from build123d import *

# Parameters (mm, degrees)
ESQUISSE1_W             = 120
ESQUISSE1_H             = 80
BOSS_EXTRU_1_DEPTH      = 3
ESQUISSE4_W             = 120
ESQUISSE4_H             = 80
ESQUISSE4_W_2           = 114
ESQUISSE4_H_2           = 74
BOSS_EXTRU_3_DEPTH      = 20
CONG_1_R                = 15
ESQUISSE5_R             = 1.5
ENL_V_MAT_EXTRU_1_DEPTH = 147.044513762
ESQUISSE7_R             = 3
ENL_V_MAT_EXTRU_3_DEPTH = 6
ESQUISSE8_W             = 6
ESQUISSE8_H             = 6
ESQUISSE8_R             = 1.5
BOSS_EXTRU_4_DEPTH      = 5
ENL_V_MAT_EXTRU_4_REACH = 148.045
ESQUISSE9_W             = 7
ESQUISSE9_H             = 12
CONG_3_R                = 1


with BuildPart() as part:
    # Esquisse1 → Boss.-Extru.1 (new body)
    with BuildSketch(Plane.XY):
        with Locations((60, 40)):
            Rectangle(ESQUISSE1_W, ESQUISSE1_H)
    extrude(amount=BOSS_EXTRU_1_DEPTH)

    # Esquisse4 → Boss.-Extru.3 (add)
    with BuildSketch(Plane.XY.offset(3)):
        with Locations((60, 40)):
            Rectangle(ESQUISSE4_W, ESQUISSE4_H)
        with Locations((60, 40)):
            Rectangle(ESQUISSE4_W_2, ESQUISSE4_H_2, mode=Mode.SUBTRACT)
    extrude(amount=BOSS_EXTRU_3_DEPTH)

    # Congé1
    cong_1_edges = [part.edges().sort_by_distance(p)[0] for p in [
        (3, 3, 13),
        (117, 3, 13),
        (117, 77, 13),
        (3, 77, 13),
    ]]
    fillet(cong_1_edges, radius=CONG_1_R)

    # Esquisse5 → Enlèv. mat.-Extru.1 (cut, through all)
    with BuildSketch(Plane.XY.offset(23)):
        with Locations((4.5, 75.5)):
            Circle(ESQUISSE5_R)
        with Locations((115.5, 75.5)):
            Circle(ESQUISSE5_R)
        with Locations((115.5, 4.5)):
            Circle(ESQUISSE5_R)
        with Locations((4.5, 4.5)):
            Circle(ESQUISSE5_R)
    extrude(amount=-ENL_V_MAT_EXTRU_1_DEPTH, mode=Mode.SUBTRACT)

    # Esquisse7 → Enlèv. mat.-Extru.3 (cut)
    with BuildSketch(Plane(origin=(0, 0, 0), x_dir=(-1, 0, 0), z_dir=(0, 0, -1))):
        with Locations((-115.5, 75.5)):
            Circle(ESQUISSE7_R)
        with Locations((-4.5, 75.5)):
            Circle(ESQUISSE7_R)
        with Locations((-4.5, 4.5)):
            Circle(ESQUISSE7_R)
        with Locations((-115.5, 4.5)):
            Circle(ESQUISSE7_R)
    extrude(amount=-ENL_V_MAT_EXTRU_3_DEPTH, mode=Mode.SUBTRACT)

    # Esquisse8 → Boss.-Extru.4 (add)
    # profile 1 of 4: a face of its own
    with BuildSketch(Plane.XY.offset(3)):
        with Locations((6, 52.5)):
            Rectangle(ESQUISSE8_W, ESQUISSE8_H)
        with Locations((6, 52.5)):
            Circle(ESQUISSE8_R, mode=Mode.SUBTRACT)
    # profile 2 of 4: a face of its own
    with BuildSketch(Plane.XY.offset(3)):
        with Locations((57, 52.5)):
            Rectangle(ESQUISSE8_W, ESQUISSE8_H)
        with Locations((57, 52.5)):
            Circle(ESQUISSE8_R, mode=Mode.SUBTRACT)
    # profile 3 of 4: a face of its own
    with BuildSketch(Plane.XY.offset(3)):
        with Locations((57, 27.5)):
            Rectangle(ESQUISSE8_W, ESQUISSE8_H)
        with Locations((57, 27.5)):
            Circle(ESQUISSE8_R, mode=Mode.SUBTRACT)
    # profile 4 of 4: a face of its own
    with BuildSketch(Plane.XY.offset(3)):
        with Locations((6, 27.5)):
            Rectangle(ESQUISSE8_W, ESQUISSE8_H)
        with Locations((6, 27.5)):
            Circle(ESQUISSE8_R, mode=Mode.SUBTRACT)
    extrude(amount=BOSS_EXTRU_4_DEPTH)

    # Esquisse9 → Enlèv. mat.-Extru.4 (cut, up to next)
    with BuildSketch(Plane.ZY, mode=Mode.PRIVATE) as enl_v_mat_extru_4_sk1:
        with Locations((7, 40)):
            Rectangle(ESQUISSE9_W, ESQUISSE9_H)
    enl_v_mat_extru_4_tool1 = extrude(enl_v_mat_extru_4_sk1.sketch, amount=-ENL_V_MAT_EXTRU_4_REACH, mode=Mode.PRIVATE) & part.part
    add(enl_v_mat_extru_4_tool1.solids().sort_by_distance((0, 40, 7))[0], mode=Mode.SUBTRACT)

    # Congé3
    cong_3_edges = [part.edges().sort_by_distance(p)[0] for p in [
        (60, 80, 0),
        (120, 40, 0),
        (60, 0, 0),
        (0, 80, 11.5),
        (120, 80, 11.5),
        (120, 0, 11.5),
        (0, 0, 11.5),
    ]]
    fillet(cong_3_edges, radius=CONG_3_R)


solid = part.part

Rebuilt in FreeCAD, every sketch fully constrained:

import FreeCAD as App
import Part
import Sketcher
from FreeCAD import Vector
Q = App.Units.Quantity


def edges_at(feature, points):
    """Names of the edges that pass closest to the given points."""
    edges = feature.Shape.Edges
    near = lambda p: min(range(len(edges)), key=lambda i: edges[i].distToShape(Part.Vertex(*p))[0])
    return sorted({f"Edge{near(p) + 1}" for p in points})


def add_polygon(sketch, points):
    """Adds a closed chain of lines whose ends are joined by coincident constraints."""
    first, n = sketch.GeometryCount, len(points)
    for a, b in zip(points, points[1:] + points[:1]):
        sketch.addGeometry(Part.LineSegment(App.Vector(*a, 0), App.Vector(*b, 0)), False)
    for i in range(n):
        sketch.addConstraint(Sketcher.Constraint("Coincident", first + i, 2, first + (i + 1) % n, 1))

doc = App.newDocument("Part")
params = doc.addObject("Spreadsheet::Sheet", "Params")
for row, (alias, value) in enumerate([
    ("sketch1_width", "120 mm"),
    ("sketch1_height", "80 mm"),
    ("pad1_length", "3 mm"),
    ("sketch2_width", "120 mm"),
    ("sketch2_width2", "114 mm"),
    ("sketch2_height", "80 mm"),
    ("sketch2_height2", "74 mm"),
    ("pad2_length", "20 mm"),
    ("fillet_radius", "15 mm"),
    ("sketch3_diameter", "3 mm"),
    ("sketch4_diameter", "6 mm"),
    ("pocket2_length", "6 mm"),
    ("sketch5_diameter", "3 mm"),
    ("sketch5_width", "6 mm"),
    ("pad3_length", "5 mm"),
    ("sketch6_width", "12 mm"),
    ("sketch6_height", "7 mm"),
    ("fillet2_radius", "1 mm"),
], start=1):
    params.set(f"A{row}", alias)
    params.set(f"B{row}", "=" + value)
    params.setAlias(f"B{row}", alias)

body = doc.addObject("PartDesign::Body", "Body")

# Sketch on XY plane
sketch1 = doc.addObject("Sketcher::SketchObject", "Sketch")
body.addObject(sketch1)
sketch1.AttachmentSupport = (doc.XY_Plane, [""])
sketch1.MapMode = "FlatFace"
add_polygon(sketch1, [(0, 80), (0, 0), (120, 0), (120, 80)])  # lines 0-3
sketch1.addConstraint([
    Sketcher.Constraint("Vertical", 0),
    Sketcher.Constraint("Horizontal", 1),
    Sketcher.Constraint("Vertical", 2),
    Sketcher.Constraint("Horizontal", 3),
    Sketcher.Constraint("Coincident", 0, 2, -1, 1),
    Sketcher.Constraint("DistanceX", 1, 1, 1, 2, Q("120 mm")),
    Sketcher.Constraint("DistanceY", 0, 2, 0, 1, Q("80 mm")),
])
sketch1.setExpression("Constraints[9]", "Params.sketch1_width")
sketch1.setExpression("Constraints[10]", "Params.sketch1_height")
pad1 = doc.addObject("PartDesign::Pad", "Pad")
body.addObject(pad1)
pad1.Profile = sketch1
pad1.setExpression("Length", "Params.pad1_length")

# Sketch on XY plane
sketch2 = doc.addObject("Sketcher::SketchObject", "Sketch001")
body.addObject(sketch2)
sketch2.AttachmentSupport = (doc.XY_Plane, [""])
sketch2.MapMode = "FlatFace"
sketch2.AttachmentOffset = App.Placement(Vector(0, 0, 3), App.Rotation())
add_polygon(sketch2, [(0, 80), (0, 0), (120, 0), (120, 80)])  # lines 0-3
add_polygon(sketch2, [(117, 3), (3, 3), (3, 77), (117, 77)])  # lines 4-7
sketch2.addConstraint([
    Sketcher.Constraint("Vertical", 0),
    Sketcher.Constraint("Horizontal", 1),
    Sketcher.Constraint("Vertical", 2),
    Sketcher.Constraint("Horizontal", 3),
    Sketcher.Constraint("Horizontal", 4),
    Sketcher.Constraint("Vertical", 5),
    Sketcher.Constraint("Horizontal", 6),
    Sketcher.Constraint("Vertical", 7),
    Sketcher.Constraint("Coincident", 0, 2, -1, 1),
    Sketcher.Constraint("DistanceX", 1, 1, 1, 2, Q("120 mm")),
    Sketcher.Constraint("DistanceX", 4, 2, 4, 1, Q("114 mm")),
    Sketcher.Constraint("DistanceY", 0, 2, 0, 1, Q("80 mm")),
    Sketcher.Constraint("DistanceY", 5, 1, 5, 2, Q("74 mm")),
    Sketcher.Constraint("DistanceX", -1, 1, 4, 2, Q("3 mm")),
    Sketcher.Constraint("DistanceY", -1, 1, 4, 2, Q("3 mm")),
])
sketch2.setExpression("Constraints[17]", "Params.sketch2_width")
sketch2.setExpression("Constraints[18]", "Params.sketch2_width2")
sketch2.setExpression("Constraints[19]", "Params.sketch2_height")
sketch2.setExpression("Constraints[20]", "Params.sketch2_height2")
pad2 = doc.addObject("PartDesign::Pad", "Pad001")
body.addObject(pad2)
pad2.Profile = sketch2
pad2.setExpression("Length", "Params.pad2_length")
doc.recompute()

fillet = doc.addObject("PartDesign::Fillet", "Fillet")
body.addObject(fillet)
fillet.Base = (pad2, edges_at(pad2, [
    (3, 3, 13),
    (117, 3, 13),
    (117, 77, 13),
    (3, 77, 13),
]))
fillet.setExpression("Radius", "Params.fillet_radius")

# Sketch on XY plane
sketch3 = doc.addObject("Sketcher::SketchObject", "Sketch002")
body.addObject(sketch3)
sketch3.AttachmentSupport = (doc.XY_Plane, [""])
sketch3.MapMode = "FlatFace"
sketch3.AttachmentOffset = App.Placement(Vector(0, 0, 23), App.Rotation())
sketch3.addGeometry([
    Part.Circle(Vector(4.5, 75.5, 0), Vector(0, 0, 1), 1.5),
    Part.Circle(Vector(115.5, 75.5, 0), Vector(0, 0, 1), 1.5),
    Part.Circle(Vector(115.5, 4.5, 0), Vector(0, 0, 1), 1.5),
    Part.Circle(Vector(4.5, 4.5, 0), Vector(0, 0, 1), 1.5),
], False)
sketch3.addConstraint([
    Sketcher.Constraint("Equal", 0, 1),
    Sketcher.Constraint("Equal", 1, 2),
    Sketcher.Constraint("Equal", 2, 3),
    Sketcher.Constraint("Horizontal", 0, 3, 1, 3),
    Sketcher.Constraint("Horizontal", 2, 3, 3, 3),
    Sketcher.Constraint("Vertical", 1, 3, 2, 3),
    Sketcher.Constraint("Vertical", 0, 3, 3, 3),
    Sketcher.Constraint("Diameter", 0, Q("3 mm")),
    Sketcher.Constraint("DistanceX", 0, 3, 1, 3, Q("111 mm")),
    Sketcher.Constraint("DistanceY", 2, 3, 1, 3, Q("71 mm")),
    Sketcher.Constraint("DistanceX", -1, 1, 0, 3, Q("4.5 mm")),
    Sketcher.Constraint("DistanceY", -1, 1, 0, 3, Q("75.5 mm")),
])
sketch3.setExpression("Constraints[7]", "Params.sketch3_diameter")
pocket1 = doc.addObject("PartDesign::Pocket", "Pocket")
body.addObject(pocket1)
pocket1.Profile = sketch3
pocket1.Type = "ThroughAll"

# Sketch on XY plane
sketch4 = doc.addObject("Sketcher::SketchObject", "Sketch003")
body.addObject(sketch4)
sketch4.AttachmentSupport = (doc.XY_Plane, [""])
sketch4.MapMode = "FlatFace"
sketch4.addGeometry([
    Part.Circle(Vector(115.5, 75.5, 0), Vector(0, 0, 1), 3),
    Part.Circle(Vector(4.5, 75.5, 0), Vector(0, 0, 1), 3),
    Part.Circle(Vector(4.5, 4.5, 0), Vector(0, 0, 1), 3),
    Part.Circle(Vector(115.5, 4.5, 0), Vector(0, 0, 1), 3),
], False)
sketch4.addConstraint([
    Sketcher.Constraint("Equal", 0, 1),
    Sketcher.Constraint("Equal", 1, 2),
    Sketcher.Constraint("Equal", 2, 3),
    Sketcher.Constraint("Horizontal", 0, 3, 1, 3),
    Sketcher.Constraint("Horizontal", 2, 3, 3, 3),
    Sketcher.Constraint("Vertical", 1, 3, 2, 3),
    Sketcher.Constraint("Vertical", 0, 3, 3, 3),
    Sketcher.Constraint("Diameter", 0, Q("6 mm")),
    Sketcher.Constraint("DistanceX", 1, 3, 0, 3, Q("111 mm")),
    Sketcher.Constraint("DistanceY", 2, 3, 1, 3, Q("71 mm")),
    Sketcher.Constraint("DistanceX", -1, 1, 0, 3, Q("115.5 mm")),
    Sketcher.Constraint("DistanceY", -1, 1, 0, 3, Q("75.5 mm")),
])
sketch4.setExpression("Constraints[7]", "Params.sketch4_diameter")
pocket2 = doc.addObject("PartDesign::Pocket", "Pocket001")
body.addObject(pocket2)
pocket2.Profile = sketch4
pocket2.setExpression("Length", "Params.pocket2_length")
pocket2.Reversed = True

# Sketch on XY plane
sketch5 = doc.addObject("Sketcher::SketchObject", "Sketch004")
body.addObject(sketch5)
sketch5.AttachmentSupport = (doc.XY_Plane, [""])
sketch5.MapMode = "FlatFace"
sketch5.AttachmentOffset = App.Placement(Vector(0, 0, 3), App.Rotation())
add_polygon(sketch5, [(3, 55.5), (3, 49.5), (9, 49.5), (9, 55.5)])  # lines 0-3
sketch5.addGeometry(Part.Circle(Vector(6, 52.5, 0), Vector(0, 0, 1), 1.5), False)  # 4
add_polygon(sketch5, [(54, 55.5), (54, 49.5), (60, 49.5), (60, 55.5)])  # lines 5-8
sketch5.addGeometry(Part.Circle(Vector(57, 52.5, 0), Vector(0, 0, 1), 1.5), False)  # 9
add_polygon(sketch5, [(54, 30.5), (54, 24.5), (60, 24.5), (60, 30.5)])  # lines 10-13
sketch5.addGeometry(Part.Circle(Vector(57, 27.5, 0), Vector(0, 0, 1), 1.5), False)  # 14
add_polygon(sketch5, [(3, 30.5), (3, 24.5), (9, 24.5), (9, 30.5)])  # lines 15-18
sketch5.addGeometry(Part.Circle(Vector(6, 27.5, 0), Vector(0, 0, 1), 1.5), False)  # 19
sketch5.addConstraint([
    Sketcher.Constraint("Vertical", 0),
    Sketcher.Constraint("Horizontal", 1),
    Sketcher.Constraint("Vertical", 2),
    Sketcher.Constraint("Horizontal", 3),
    Sketcher.Constraint("Vertical", 5),
    Sketcher.Constraint("Horizontal", 6),
    Sketcher.Constraint("Vertical", 7),
    Sketcher.Constraint("Horizontal", 8),
    Sketcher.Constraint("Vertical", 10),
    Sketcher.Constraint("Horizontal", 11),
    Sketcher.Constraint("Vertical", 12),
    Sketcher.Constraint("Horizontal", 13),
    Sketcher.Constraint("Vertical", 15),
    Sketcher.Constraint("Horizontal", 16),
    Sketcher.Constraint("Vertical", 17),
    Sketcher.Constraint("Horizontal", 18),
    Sketcher.Constraint("Equal", 4, 9),
    Sketcher.Constraint("Equal", 9, 14),
    Sketcher.Constraint("Equal", 14, 19),
    Sketcher.Constraint("Horizontal", 4, 3, 9, 3),
    Sketcher.Constraint("Horizontal", 14, 3, 19, 3),
    Sketcher.Constraint("Horizontal", 1, 2, 5, 2),
    Sketcher.Constraint("Horizontal", 3, 2, 7, 2),
    Sketcher.Constraint("Horizontal", 11, 2, 15, 2),
    Sketcher.Constraint("Horizontal", 13, 2, 17, 2),
    Sketcher.Constraint("Vertical", 9, 3, 14, 3),
    Sketcher.Constraint("Vertical", 4, 3, 19, 3),
    Sketcher.Constraint("Vertical", 8, 2, 10, 2),
    Sketcher.Constraint("Vertical", 7, 2, 11, 2),
    Sketcher.Constraint("Vertical", 3, 2, 15, 2),
    Sketcher.Constraint("Vertical", 2, 2, 16, 2),
    Sketcher.Constraint("Equal", 3, 6),
    Sketcher.Constraint("Equal", 18, 0),
    Sketcher.Constraint("Equal", 7, 10),
    Sketcher.Constraint("Diameter", 4, Q("3 mm")),
    Sketcher.Constraint("DistanceX", 1, 1, 1, 2, Q("6 mm")),
    Sketcher.Constraint("DistanceX", -1, 1, 4, 3, Q("6 mm")),
    Sketcher.Constraint("DistanceX", -1, 1, 9, 3, Q("57 mm")),
    Sketcher.Constraint("DistanceX", -1, 1, 0, 2, Q("3 mm")),
    Sketcher.Constraint("DistanceX", -1, 1, 5, 2, Q("54 mm")),
    Sketcher.Constraint("DistanceY", 14, 3, 9, 3, Q("25 mm")),
    Sketcher.Constraint("DistanceY", 0, 2, 4, 3, Q("3 mm")),
    Sketcher.Constraint("DistanceY", 10, 2, 14, 3, Q("3 mm")),
    Sketcher.Constraint("DistanceY", -1, 1, 4, 3, Q("52.5 mm")),
])
sketch5.setExpression("Constraints[50]", "Params.sketch5_diameter")
sketch5.setExpression("Constraints[51]", "Params.sketch5_width")
pad3 = doc.addObject("PartDesign::Pad", "Pad002")
body.addObject(pad3)
pad3.Profile = sketch5
pad3.setExpression("Length", "Params.pad3_length")

# Sketch on YZ plane
sketch6 = doc.addObject("Sketcher::SketchObject", "Sketch005")
body.addObject(sketch6)
sketch6.AttachmentSupport = (doc.YZ_Plane, [""])
sketch6.MapMode = "FlatFace"
add_polygon(sketch6, [(46, 3.5), (34, 3.5), (34, 10.5), (46, 10.5)])  # lines 0-3
sketch6.addConstraint([
    Sketcher.Constraint("Horizontal", 0),
    Sketcher.Constraint("Vertical", 1),
    Sketcher.Constraint("Horizontal", 2),
    Sketcher.Constraint("Vertical", 3),
    Sketcher.Constraint("DistanceX", 0, 2, 0, 1, Q("12 mm")),
    Sketcher.Constraint("DistanceY", 1, 1, 1, 2, Q("7 mm")),
    Sketcher.Constraint("DistanceX", -1, 1, 0, 2, Q("34 mm")),
    Sketcher.Constraint("DistanceY", -1, 1, 0, 2, Q("3.5 mm")),
])
sketch6.setExpression("Constraints[8]", "Params.sketch6_width")
sketch6.setExpression("Constraints[9]", "Params.sketch6_height")
pocket3 = doc.addObject("PartDesign::Pocket", "Pocket002")
body.addObject(pocket3)
pocket3.Profile = sketch6
pocket3.Type = "UpToFirst"
pocket3.Reversed = True
doc.recompute()

fillet2 = doc.addObject("PartDesign::Fillet", "Fillet001")
body.addObject(fillet2)
fillet2.Base = (pocket3, edges_at(pocket3, [
    (60, 80, 0),
    (120, 40, 0),
    (60, 0, 0),
    (0, 80, 11.5),
    (120, 80, 11.5),
    (120, 0, 11.5),
    (0, 0, 11.5),
]))
fillet2.setExpression("Radius", "Params.fillet2_radius")

doc.recompute()
